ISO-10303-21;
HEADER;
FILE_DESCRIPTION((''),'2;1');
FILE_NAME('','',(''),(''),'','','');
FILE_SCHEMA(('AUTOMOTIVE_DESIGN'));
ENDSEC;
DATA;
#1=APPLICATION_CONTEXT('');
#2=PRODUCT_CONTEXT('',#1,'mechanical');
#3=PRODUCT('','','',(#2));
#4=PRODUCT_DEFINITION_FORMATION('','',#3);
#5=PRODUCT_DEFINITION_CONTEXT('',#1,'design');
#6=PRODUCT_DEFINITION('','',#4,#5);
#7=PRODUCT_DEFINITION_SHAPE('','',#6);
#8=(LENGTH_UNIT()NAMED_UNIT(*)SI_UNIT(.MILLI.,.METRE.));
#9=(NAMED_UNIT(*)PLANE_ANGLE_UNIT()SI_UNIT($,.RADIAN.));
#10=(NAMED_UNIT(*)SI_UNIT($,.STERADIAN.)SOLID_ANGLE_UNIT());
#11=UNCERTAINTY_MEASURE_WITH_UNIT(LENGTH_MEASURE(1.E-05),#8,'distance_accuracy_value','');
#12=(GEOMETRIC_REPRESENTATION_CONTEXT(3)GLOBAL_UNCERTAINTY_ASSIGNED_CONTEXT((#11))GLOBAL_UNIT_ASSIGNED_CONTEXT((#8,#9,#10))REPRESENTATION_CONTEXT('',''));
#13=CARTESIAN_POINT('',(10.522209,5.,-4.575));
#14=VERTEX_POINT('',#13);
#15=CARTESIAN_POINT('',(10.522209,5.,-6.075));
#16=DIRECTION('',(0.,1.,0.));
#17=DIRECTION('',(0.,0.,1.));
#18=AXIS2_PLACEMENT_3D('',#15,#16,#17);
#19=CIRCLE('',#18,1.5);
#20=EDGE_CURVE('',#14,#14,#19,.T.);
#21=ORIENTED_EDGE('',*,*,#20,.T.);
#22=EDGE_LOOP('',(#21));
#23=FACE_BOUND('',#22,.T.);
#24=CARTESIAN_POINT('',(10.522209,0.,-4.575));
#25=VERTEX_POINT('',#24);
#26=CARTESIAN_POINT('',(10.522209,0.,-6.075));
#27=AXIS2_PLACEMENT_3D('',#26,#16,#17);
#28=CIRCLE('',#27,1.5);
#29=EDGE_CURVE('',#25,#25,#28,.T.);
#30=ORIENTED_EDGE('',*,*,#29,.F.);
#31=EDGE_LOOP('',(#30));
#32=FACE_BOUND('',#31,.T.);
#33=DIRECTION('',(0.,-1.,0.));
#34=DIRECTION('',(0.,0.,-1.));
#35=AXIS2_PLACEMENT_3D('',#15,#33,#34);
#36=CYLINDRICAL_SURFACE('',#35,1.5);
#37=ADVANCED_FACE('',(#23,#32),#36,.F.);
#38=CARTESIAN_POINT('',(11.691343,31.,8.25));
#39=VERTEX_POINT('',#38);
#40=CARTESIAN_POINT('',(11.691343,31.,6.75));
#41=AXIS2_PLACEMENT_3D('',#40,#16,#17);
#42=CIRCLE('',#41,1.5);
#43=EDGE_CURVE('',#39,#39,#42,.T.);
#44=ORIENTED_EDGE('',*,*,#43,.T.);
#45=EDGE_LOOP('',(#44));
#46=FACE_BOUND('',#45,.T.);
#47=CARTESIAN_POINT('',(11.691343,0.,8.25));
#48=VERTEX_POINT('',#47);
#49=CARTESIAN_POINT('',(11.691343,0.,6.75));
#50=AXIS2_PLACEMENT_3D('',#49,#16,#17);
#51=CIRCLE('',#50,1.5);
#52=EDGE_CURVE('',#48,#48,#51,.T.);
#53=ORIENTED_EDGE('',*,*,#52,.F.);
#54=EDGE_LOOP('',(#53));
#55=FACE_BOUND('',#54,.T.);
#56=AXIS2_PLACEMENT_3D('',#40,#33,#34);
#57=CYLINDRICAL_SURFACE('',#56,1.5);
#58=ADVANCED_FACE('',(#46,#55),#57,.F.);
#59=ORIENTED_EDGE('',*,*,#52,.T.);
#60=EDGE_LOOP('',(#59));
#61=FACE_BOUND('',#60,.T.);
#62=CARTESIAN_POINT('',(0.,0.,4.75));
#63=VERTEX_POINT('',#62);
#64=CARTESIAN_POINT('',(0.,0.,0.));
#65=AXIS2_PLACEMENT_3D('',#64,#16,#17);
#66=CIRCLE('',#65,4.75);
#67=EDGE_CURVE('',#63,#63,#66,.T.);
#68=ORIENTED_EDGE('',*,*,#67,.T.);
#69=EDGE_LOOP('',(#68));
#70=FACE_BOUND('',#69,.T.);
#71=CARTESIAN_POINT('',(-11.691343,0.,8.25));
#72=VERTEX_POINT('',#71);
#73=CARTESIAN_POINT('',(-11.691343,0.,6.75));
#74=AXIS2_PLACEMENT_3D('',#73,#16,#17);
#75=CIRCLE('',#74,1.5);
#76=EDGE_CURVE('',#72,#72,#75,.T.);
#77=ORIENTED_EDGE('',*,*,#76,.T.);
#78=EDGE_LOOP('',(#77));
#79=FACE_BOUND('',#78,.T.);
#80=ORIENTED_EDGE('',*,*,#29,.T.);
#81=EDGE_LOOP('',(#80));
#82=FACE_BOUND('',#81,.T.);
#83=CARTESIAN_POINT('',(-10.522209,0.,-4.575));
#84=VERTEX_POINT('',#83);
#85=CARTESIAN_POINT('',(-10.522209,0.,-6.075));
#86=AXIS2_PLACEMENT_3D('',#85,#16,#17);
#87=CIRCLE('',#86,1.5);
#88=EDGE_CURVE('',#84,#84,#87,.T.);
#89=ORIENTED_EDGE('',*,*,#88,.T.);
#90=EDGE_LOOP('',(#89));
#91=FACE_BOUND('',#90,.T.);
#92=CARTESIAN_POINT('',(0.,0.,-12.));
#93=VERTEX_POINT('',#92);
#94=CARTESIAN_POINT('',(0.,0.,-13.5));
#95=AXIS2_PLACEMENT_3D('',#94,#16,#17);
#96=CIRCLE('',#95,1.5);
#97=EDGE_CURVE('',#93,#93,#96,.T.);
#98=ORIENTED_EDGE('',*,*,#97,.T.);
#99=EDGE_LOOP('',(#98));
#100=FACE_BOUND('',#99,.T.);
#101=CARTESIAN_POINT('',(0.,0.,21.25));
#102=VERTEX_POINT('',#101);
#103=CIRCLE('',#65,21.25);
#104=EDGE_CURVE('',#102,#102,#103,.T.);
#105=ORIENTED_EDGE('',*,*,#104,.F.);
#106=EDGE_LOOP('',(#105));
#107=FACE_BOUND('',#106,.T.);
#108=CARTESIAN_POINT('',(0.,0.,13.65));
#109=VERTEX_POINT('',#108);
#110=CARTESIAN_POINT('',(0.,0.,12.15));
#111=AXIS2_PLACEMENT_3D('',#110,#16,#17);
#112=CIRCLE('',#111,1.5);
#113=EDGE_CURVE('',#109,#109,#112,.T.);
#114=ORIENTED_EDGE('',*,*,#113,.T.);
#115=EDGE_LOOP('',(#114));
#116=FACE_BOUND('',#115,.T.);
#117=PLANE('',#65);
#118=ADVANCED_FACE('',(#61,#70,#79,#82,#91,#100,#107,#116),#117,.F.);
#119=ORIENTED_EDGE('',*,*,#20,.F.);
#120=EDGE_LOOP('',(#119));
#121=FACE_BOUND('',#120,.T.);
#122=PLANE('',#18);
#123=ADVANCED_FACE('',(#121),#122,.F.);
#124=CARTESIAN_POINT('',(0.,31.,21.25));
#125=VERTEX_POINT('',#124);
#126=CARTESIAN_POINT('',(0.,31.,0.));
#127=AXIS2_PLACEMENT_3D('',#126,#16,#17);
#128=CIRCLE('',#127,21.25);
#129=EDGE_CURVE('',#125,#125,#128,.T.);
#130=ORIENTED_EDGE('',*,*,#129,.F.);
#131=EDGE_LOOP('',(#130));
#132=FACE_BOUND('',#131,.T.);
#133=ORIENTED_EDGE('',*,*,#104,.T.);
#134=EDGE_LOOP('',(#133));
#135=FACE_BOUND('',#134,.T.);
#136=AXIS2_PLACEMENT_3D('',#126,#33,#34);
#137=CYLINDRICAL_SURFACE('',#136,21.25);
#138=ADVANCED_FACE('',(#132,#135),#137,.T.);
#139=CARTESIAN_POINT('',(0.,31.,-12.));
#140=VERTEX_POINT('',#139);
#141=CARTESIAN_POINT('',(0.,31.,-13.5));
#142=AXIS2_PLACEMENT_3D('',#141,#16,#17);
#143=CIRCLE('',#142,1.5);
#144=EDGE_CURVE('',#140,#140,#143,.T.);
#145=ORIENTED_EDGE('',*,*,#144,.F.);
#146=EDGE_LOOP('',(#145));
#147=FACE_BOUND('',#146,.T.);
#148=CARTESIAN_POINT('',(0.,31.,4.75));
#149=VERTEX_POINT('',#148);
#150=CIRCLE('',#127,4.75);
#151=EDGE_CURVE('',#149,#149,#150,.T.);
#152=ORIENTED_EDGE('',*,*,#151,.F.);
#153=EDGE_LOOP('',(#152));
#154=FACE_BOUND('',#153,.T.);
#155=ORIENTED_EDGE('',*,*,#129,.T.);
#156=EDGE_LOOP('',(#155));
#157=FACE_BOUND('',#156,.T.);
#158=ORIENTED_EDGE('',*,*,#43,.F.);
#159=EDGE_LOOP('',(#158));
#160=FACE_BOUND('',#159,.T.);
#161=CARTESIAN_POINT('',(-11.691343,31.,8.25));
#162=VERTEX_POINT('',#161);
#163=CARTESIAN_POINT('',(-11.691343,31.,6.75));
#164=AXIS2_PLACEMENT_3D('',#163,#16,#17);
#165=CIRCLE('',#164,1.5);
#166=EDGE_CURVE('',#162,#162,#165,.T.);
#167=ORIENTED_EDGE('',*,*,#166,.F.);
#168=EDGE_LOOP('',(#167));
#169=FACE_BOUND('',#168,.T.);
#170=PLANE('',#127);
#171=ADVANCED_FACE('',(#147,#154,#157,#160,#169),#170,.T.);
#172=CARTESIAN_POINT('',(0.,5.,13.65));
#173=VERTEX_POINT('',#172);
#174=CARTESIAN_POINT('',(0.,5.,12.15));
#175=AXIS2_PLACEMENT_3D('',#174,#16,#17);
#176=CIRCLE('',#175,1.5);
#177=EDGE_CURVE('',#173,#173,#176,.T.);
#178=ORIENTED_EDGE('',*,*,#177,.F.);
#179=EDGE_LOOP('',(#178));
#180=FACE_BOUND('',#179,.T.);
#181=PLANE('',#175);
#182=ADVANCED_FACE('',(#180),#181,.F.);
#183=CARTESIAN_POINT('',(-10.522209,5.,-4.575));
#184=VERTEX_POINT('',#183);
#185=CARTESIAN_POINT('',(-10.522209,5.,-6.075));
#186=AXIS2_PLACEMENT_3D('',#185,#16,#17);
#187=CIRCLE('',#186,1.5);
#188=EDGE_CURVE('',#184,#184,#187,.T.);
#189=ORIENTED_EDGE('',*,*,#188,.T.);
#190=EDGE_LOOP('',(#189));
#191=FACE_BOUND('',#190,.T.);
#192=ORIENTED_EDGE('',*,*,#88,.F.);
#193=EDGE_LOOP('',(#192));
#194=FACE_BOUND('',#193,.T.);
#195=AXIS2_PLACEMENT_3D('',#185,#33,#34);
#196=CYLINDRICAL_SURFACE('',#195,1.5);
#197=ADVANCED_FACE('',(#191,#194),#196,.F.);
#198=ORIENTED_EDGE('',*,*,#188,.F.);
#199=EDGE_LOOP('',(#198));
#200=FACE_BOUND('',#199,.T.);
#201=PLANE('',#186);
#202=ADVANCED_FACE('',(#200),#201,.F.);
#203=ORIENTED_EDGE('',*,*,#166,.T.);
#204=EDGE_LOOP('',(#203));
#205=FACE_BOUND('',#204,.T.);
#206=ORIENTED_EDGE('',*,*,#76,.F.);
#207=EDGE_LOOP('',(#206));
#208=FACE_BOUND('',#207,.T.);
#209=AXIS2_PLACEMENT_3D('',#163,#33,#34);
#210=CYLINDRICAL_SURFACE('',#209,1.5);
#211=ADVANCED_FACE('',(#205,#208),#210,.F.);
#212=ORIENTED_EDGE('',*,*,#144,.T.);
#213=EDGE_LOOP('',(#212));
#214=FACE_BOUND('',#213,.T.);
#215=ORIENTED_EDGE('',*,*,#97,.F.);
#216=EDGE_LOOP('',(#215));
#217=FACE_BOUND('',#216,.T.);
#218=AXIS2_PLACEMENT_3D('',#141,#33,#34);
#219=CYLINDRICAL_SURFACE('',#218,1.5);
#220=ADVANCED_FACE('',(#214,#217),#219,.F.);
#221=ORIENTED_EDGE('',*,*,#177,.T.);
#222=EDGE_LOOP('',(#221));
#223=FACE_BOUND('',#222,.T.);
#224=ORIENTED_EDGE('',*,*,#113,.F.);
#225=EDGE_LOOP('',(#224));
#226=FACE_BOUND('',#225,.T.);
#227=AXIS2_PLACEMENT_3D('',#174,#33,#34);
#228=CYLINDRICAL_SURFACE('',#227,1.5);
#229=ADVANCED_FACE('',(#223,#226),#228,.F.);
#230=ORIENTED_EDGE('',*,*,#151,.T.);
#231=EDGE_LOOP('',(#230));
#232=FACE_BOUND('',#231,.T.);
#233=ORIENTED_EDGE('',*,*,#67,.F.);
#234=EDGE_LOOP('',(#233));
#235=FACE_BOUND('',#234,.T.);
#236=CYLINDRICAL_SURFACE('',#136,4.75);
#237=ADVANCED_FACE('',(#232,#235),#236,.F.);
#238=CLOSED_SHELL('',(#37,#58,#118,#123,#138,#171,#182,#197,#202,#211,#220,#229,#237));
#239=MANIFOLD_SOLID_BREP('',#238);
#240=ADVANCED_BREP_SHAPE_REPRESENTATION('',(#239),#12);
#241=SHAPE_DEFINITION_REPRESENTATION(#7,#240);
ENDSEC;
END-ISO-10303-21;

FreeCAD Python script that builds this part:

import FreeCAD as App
import Part
import Sketcher
from FreeCAD import Vector

doc = App.newDocument("Part")
body = doc.addObject("PartDesign::Body", "Body")

# Sketch on XZ plane
sketch1 = doc.addObject("Sketcher::SketchObject", "Sketch")
body.addObject(sketch1)
sketch1.AttachmentSupport = (doc.XZ_Plane, [""])
sketch1.MapMode = "FlatFace"
sketch1.addGeometry([
    Part.Circle(Vector(0, 0, 0), Vector(0, 0, 1), 21.2),  # 0
    Part.Circle(Vector(-11.7, 6.8, 0), Vector(0, 0, 1), 1.5),  # 1
    Part.Circle(Vector(0, -13.5, 0), Vector(0, 0, 1), 1.5),  # 2
    Part.Circle(Vector(0, 0, 0), Vector(0, 0, 1), 4.8),  # 3
    Part.Circle(Vector(11.7, 6.8, 0), Vector(0, 0, 1), 1.5),  # 4
], False)
sketch1.addConstraint([
    Sketcher.Constraint("Coincident", 0, 3, -1, 1),
    Sketcher.Constraint("Coincident", 3, 3, -1, 1),
    Sketcher.Constraint("Equal", 1, 2),
    Sketcher.Constraint("Equal", 2, 4),
    Sketcher.Constraint("Symmetric", 1, 3, 4, 3, -2),
    Sketcher.Constraint("PointOnObject", 2, 3, -2),
    Sketcher.Constraint("Diameter", 1, 3.0),
    Sketcher.Constraint("Diameter", 0, 42.5),
    Sketcher.Constraint("Diameter", 3, 9.5),
    Sketcher.Constraint("DistanceY", 2, 3, -1, 1, 13.5),
    Sketcher.Constraint("DistanceY", -1, 1, 1, 3, 6.75),
    Sketcher.Constraint("DistanceX", 1, 3, -1, 1, 11.691343),
])
pad1 = doc.addObject("PartDesign::Pad", "Pad")
body.addObject(pad1)
pad1.Profile = sketch1
pad1.Length = 31
pad1.Reversed = True

# Sketch on XZ plane
sketch2 = doc.addObject("Sketcher::SketchObject", "Sketch001")
body.addObject(sketch2)
sketch2.AttachmentSupport = (doc.XZ_Plane, [""])
sketch2.MapMode = "FlatFace"
sketch2.addGeometry([
    Part.Circle(Vector(10.5, -6.1, 0), Vector(0, 0, 1), 1.5),
    Part.Circle(Vector(0, 12.2, 0), Vector(0, 0, 1), 1.5),
    Part.Circle(Vector(-10.5, -6.1, 0), Vector(0, 0, 1), 1.5),
], False)
sketch2.addConstraint([
    Sketcher.Constraint("Equal", 0, 1),
    Sketcher.Constraint("Equal", 1, 2),
    Sketcher.Constraint("Symmetric", 0, 3, 2, 3, -2),
    Sketcher.Constraint("PointOnObject", 1, 3, -2),
    Sketcher.Constraint("Diameter", 0, 3.0),
    Sketcher.Constraint("DistanceY", -1, 1, 1, 3, 12.15),
    Sketcher.Constraint("DistanceY", 0, 3, -1, 1, 6.075),
    Sketcher.Constraint("DistanceX", -1, 1, 0, 3, 10.522209),
])
pocket1 = doc.addObject("PartDesign::Pocket", "Pocket")
body.addObject(pocket1)
pocket1.Profile = sketch2
pocket1.Length = 5

doc.recompute()
